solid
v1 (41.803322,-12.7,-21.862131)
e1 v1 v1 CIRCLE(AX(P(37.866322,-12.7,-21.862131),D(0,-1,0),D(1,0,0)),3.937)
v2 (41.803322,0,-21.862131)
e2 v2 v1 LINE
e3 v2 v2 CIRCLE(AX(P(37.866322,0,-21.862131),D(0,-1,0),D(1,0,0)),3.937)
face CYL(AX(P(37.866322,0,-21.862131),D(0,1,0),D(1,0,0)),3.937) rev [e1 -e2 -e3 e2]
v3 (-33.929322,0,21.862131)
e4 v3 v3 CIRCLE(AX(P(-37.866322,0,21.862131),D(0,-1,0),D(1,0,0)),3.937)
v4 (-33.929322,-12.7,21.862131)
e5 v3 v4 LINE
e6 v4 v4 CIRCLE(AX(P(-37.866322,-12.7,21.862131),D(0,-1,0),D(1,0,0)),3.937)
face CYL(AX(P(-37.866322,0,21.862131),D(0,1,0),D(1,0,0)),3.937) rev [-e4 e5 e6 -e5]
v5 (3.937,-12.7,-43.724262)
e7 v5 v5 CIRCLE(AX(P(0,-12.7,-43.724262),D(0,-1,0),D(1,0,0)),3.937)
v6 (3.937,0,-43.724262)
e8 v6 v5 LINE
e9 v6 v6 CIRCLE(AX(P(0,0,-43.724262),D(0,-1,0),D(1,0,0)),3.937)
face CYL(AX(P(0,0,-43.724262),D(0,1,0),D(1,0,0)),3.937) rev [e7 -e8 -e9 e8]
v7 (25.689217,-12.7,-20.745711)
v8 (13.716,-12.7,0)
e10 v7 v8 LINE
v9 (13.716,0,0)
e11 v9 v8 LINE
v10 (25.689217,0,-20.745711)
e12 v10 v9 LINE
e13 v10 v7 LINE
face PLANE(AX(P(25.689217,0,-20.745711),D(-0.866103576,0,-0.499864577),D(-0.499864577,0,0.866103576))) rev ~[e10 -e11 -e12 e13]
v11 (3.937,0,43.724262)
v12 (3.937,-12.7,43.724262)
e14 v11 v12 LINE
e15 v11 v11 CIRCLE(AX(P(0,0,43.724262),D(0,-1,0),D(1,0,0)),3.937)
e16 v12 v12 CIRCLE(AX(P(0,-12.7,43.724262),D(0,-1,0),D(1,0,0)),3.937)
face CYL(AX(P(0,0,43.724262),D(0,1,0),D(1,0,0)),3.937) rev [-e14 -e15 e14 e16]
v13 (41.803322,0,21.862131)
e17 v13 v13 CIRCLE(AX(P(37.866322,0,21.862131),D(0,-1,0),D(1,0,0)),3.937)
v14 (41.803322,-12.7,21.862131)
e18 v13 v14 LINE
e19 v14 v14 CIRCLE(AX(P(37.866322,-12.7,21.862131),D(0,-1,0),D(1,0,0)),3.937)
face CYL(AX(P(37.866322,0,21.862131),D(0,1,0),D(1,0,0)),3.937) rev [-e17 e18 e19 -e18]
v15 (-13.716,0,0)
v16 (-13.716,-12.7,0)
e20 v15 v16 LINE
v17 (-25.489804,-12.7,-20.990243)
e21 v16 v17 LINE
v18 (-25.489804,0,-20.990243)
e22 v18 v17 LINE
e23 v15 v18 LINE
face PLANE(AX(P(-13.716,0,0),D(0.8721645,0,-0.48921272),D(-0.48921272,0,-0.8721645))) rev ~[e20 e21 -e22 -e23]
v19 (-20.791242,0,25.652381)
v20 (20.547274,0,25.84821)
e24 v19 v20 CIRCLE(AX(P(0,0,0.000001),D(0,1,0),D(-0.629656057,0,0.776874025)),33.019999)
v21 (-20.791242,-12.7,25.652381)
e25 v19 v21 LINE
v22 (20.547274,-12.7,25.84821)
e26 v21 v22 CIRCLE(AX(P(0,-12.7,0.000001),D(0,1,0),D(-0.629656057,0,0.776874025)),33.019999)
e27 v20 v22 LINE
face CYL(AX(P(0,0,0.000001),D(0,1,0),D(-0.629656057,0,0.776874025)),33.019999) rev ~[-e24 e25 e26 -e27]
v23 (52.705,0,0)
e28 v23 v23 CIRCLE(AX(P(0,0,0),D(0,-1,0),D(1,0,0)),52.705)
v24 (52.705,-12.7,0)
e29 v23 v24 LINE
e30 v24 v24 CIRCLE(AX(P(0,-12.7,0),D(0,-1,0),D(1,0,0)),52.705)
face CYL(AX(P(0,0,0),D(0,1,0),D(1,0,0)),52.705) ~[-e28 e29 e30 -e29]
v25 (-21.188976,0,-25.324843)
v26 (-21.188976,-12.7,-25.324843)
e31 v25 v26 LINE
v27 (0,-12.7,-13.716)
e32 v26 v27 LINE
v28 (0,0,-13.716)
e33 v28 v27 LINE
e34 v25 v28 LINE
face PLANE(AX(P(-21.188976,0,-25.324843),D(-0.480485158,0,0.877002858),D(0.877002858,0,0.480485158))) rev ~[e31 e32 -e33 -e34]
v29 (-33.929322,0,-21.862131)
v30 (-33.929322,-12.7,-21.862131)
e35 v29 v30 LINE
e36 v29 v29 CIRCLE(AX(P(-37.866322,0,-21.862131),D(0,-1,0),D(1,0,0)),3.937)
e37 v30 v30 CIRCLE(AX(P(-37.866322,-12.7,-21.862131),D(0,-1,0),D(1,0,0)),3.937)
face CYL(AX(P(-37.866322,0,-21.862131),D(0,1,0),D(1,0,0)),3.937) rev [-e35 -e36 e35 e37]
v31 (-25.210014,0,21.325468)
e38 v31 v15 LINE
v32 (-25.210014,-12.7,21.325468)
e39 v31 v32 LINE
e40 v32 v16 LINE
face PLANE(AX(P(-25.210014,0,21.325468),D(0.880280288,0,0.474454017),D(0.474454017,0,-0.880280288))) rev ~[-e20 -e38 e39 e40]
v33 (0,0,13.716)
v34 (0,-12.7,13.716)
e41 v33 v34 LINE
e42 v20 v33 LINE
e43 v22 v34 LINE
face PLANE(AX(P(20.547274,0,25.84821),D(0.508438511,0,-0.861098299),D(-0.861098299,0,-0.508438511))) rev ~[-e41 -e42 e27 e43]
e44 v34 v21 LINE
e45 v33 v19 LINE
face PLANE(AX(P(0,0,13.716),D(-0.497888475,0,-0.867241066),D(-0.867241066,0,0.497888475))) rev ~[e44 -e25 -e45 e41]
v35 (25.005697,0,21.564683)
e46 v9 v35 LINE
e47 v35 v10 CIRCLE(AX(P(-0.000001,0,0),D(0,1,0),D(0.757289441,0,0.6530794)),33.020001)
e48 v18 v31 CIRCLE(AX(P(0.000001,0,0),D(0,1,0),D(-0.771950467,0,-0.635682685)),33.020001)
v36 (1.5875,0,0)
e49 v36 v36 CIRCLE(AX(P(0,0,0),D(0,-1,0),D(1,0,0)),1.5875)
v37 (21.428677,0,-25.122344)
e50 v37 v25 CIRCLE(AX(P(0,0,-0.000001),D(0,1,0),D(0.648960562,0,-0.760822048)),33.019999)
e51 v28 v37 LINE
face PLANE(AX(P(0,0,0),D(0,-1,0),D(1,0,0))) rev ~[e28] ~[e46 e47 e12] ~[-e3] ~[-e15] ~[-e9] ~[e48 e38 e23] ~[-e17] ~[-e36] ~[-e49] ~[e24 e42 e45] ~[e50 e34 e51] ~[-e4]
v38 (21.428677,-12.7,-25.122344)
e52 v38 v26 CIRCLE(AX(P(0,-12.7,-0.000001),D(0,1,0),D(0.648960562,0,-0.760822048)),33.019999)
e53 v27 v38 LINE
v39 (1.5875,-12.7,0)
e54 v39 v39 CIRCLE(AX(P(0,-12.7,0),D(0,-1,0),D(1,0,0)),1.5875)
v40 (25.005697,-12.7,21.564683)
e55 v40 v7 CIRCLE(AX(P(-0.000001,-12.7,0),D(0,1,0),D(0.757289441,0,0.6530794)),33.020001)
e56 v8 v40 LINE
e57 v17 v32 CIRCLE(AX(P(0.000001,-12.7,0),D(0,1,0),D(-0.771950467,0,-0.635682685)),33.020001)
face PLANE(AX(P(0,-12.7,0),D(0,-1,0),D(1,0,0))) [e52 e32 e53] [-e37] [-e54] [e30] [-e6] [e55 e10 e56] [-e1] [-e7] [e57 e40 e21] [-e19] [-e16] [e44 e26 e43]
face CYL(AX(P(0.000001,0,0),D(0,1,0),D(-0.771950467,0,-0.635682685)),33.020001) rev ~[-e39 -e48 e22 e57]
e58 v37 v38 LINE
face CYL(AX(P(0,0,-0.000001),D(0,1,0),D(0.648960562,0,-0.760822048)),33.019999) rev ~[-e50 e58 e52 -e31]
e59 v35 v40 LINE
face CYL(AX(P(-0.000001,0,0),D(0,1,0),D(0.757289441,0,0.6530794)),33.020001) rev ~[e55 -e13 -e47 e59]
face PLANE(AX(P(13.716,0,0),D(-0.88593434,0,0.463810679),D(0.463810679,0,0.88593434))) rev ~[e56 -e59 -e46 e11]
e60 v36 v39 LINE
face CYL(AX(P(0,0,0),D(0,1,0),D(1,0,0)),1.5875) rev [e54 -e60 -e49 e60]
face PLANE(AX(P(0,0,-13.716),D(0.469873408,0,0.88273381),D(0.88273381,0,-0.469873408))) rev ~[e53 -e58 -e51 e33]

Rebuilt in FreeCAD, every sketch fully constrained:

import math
import FreeCAD as App
import Part
import Sketcher
Q = App.Units.Quantity

doc = App.newDocument("Part")
params = doc.addObject("Spreadsheet::Sheet", "Params")
for row, (alias, value) in enumerate([
    ("sketch1_radius", "1.3 in"),
    ("sketch1_diameter", "4.15 in"),
    ("sketch1_diameter2", "0.31 in"),
    ("sketch1_diameter3", "0.125 in"),
    ("pad1_length", "0.5 in"),
], start=1):
    params.set(f"A{row}", alias)
    params.set(f"B{row}", "=" + value)
    params.setAlias(f"B{row}", alias)

body = doc.addObject("PartDesign::Body", "Body")

sketch1 = doc.addObject("Sketcher::SketchObject", "Sketch")
body.addObject(sketch1)
sketch1.AttachmentSupport = (doc.XZ_Plane, [""])
sketch1.MapMode = "FlatFace"
sketch1.addGeometry([
    Part.Circle(App.Vector(0, 0, 0), App.Vector(0, 0, 1), 52.7),
    Part.Circle(App.Vector(-37.9, -21.9, 0), App.Vector(0, 0, 1), 3.9),
    Part.Circle(App.Vector(0, -43.7, 0), App.Vector(0, 0, 1), 3.9),
    Part.ArcOfCircle(Part.Circle(App.Vector(0, 0, 0), App.Vector(0, 0, 1), 33), math.radians(-130), math.radians(-50)),
    Part.LineSegment(App.Vector(-21.2, -25.3, 0), App.Vector(0, -13.7, 0)),
    Part.LineSegment(App.Vector(0, -13.7, 0), App.Vector(21.4, -25.1, 0)),
    Part.Circle(App.Vector(37.9, -21.9, 0), App.Vector(0, 0, 1), 3.9),
    Part.LineSegment(App.Vector(-13.7, 0, 0), App.Vector(-25.5, -21, 0)),
    Part.ArcOfCircle(Part.Circle(App.Vector(0, 0, 0), App.Vector(0, 0, 1), 33), math.radians(140), math.radians(219)),
    Part.LineSegment(App.Vector(-25.2, 21.3, 0), App.Vector(-13.7, 0, 0)),
    Part.Circle(App.Vector(-37.9, 21.9, 0), App.Vector(0, 0, 1), 3.9),
    Part.LineSegment(App.Vector(20.5, 25.8, 0), App.Vector(0, 13.7, 0)),
    Part.LineSegment(App.Vector(0, 13.7, 0), App.Vector(-20.8, 25.7, 0)),
    Part.ArcOfCircle(Part.Circle(App.Vector(0, 0, 0), App.Vector(0, 0, 1), 33), math.radians(52), math.radians(129)),
    Part.Circle(App.Vector(0, 0, 0), App.Vector(0, 0, 1), 1.6),
    Part.LineSegment(App.Vector(25.7, -20.7, 0), App.Vector(13.7, 0, 0)),
    Part.LineSegment(App.Vector(13.7, 0, 0), App.Vector(25, 21.6, 0)),
    Part.ArcOfCircle(Part.Circle(App.Vector(0, 0, 0), App.Vector(0, 0, 1), 33), math.radians(-39), math.radians(41)),
    Part.Circle(App.Vector(37.9, 21.9, 0), App.Vector(0, 0, 1), 3.9),
    Part.Circle(App.Vector(0, 43.7, 0), App.Vector(0, 0, 1), 3.9),
], False)
sketch1.addConstraint([
    Sketcher.Constraint("Coincident", 3, 1, 4, 1),
    Sketcher.Constraint("Coincident", 4, 2, 5, 1),
    Sketcher.Constraint("Coincident", 5, 2, 3, 2),
    Sketcher.Constraint("Coincident", 7, 2, 8, 2),
    Sketcher.Constraint("Coincident", 8, 1, 9, 1),
    Sketcher.Constraint("Coincident", 9, 2, 7, 1),
    Sketcher.Constraint("Coincident", 11, 2, 12, 1),
    Sketcher.Constraint("Coincident", 12, 2, 13, 2),
    Sketcher.Constraint("Coincident", 13, 1, 11, 1),
    Sketcher.Constraint("Coincident", 15, 2, 16, 1),
    Sketcher.Constraint("Coincident", 16, 2, 17, 2),
    Sketcher.Constraint("Coincident", 17, 1, 15, 1),
    Sketcher.Constraint("Coincident", 0, 3, -1, 1),
    Sketcher.Constraint("Coincident", 3, 3, -1, 1),
    Sketcher.Constraint("Coincident", 8, 3, -1, 1),
    Sketcher.Constraint("Coincident", 13, 3, -1, 1),
    Sketcher.Constraint("Coincident", 14, 3, -1, 1),
    Sketcher.Constraint("Coincident", 17, 3, -1, 1),
    Sketcher.Constraint("Equal", 1, 2),
    Sketcher.Constraint("Equal", 2, 6),
    Sketcher.Constraint("Equal", 3, 8),
    Sketcher.Constraint("Equal", 6, 10),
    Sketcher.Constraint("Equal", 8, 13),
    Sketcher.Constraint("Equal", 8, 17),
    Sketcher.Constraint("Equal", 10, 18),
    Sketcher.Constraint("Equal", 18, 19),
    Sketcher.Constraint("Symmetric", 6, 3, 10, 3, -1, 1),
    Sketcher.Constraint("Symmetric", 1, 3, 18, 3, -1, 1),
    Sketcher.Constraint("Symmetric", 2, 3, 19, 3, -1, 1),
    Sketcher.Constraint("Symmetric", 4, 2, 11, 2, -1, 1),
    Sketcher.Constraint("Symmetric", 9, 2, 15, 2, -1, 1),
    Sketcher.Constraint("Symmetric", 1, 3, 6, 3, -2),
    Sketcher.Constraint("PointOnObject", 2, 3, -2),
    Sketcher.Constraint("PointOnObject", 4, 2, -2),
    Sketcher.Constraint("PointOnObject", 9, 2, -1),
    Sketcher.Constraint("Radius", 3, Q("1.3 in")),
    Sketcher.Constraint("Diameter", 0, Q("4.15 in")),
    Sketcher.Constraint("Diameter", 1, Q("0.31 in")),
    Sketcher.Constraint("Diameter", 14, Q("0.125 in")),
    Sketcher.Constraint("DistanceY", 4, 2, -1, 1, Q("0.54 in")),
    Sketcher.Constraint("DistanceX", 9, 2, -1, 1, Q("0.54 in")),
    Sketcher.Constraint("DistanceX", 1, 3, -1, 1, Q("1.4908001 in")),
    Sketcher.Constraint("DistanceY", 3, 1, 7, 2, 4.3346),
    Sketcher.Constraint("Distance", 4, 24.160669),
    Sketcher.Constraint("Distance", 9, 24.22577),
    Sketcher.Constraint("Distance", 15, 23.952922),
    Sketcher.Constraint("DistanceY", 1, 3, -1, 1, 21.862131),
    Sketcher.Constraint("DistanceY", -1, 1, 12, 2, 25.652381),
    Sketcher.Constraint("DistanceY", -1, 1, 13, 1, 25.84821),
    Sketcher.Constraint("DistanceY", 2, 3, 1, 3, 21.862131),
    Sketcher.Constraint("DistanceY", 2, 3, 5, 2, 18.601918),
    Sketcher.Constraint("DistanceY", 16, 2, 18, 3, 0.297448),
])
sketch1.setExpression("Constraints[35]", "Params.sketch1_radius")
sketch1.setExpression("Constraints[36]", "Params.sketch1_diameter")
sketch1.setExpression("Constraints[37]", "Params.sketch1_diameter2")
sketch1.setExpression("Constraints[38]", "Params.sketch1_diameter3")
pad1 = doc.addObject("PartDesign::Pad", "Pad")
body.addObject(pad1)
pad1.Profile = sketch1
pad1.setExpression("Length", "Params.pad1_length")

doc.recompute()
